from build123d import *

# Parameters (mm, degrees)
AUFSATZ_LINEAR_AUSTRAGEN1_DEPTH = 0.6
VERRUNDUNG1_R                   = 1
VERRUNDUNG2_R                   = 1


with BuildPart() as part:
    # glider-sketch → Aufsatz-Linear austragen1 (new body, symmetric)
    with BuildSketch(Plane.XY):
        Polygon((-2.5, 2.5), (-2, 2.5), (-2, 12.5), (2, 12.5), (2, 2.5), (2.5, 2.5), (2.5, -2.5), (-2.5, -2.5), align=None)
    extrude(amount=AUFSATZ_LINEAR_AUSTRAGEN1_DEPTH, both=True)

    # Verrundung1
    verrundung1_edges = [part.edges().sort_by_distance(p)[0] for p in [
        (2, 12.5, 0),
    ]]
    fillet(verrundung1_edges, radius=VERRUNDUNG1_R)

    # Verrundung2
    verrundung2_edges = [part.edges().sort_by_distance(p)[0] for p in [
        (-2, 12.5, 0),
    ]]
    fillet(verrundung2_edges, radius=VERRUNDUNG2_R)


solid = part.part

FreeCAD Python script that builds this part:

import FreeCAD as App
import Part
import Sketcher

V = App.Vector


def edges_at(feature, points):
    """Names of the edges that pass closest to the given points."""
    edges = feature.Shape.Edges
    near = lambda p: min(range(len(edges)), key=lambda i: edges[i].distToShape(Part.Vertex(*p))[0])
    return sorted({f"Edge{near(p) + 1}" for p in points})


def add_polygon(sketch, points):
    """Adds a closed chain of lines whose ends are joined by coincident constraints."""
    first, n = sketch.GeometryCount, len(points)
    for a, b in zip(points, points[1:] + points[:1]):
        sketch.addGeometry(Part.LineSegment(App.Vector(*a, 0), App.Vector(*b, 0)), False)
    for i in range(n):
        sketch.addConstraint(Sketcher.Constraint("Coincident", first + i, 2, first + (i + 1) % n, 1))

doc = App.newDocument("Part")
body = doc.addObject("PartDesign::Body", "Body")

# Sketch on XY plane
sketch1 = doc.addObject("Sketcher::SketchObject", "Sketch")
body.addObject(sketch1)
sketch1.AttachmentSupport = (doc.XY_Plane, [""])
sketch1.MapMode = "FlatFace"
add_polygon(sketch1, [(-2, 2.5), (-2.5, 2.5), (-2.5, -2.5), (2.5, -2.5), (2.5, 2.5), (2, 2.5), (2, 12.5), (-2, 12.5)])  # lines 0-7
sketch1.addConstraint(Sketcher.Constraint("Horizontal", 0))
sketch1.addConstraint(Sketcher.Constraint("Vertical", 1))
sketch1.addConstraint(Sketcher.Constraint("Horizontal", 2))
sketch1.addConstraint(Sketcher.Constraint("Vertical", 3))
sketch1.addConstraint(Sketcher.Constraint("Horizontal", 4))
sketch1.addConstraint(Sketcher.Constraint("Vertical", 5))
sketch1.addConstraint(Sketcher.Constraint("Horizontal", 6))
sketch1.addConstraint(Sketcher.Constraint("Vertical", 7))
sketch1.addConstraint(Sketcher.Constraint("Symmetric", 0, 2, 2, 2, -1, 1))
sketch1.addConstraint(Sketcher.Constraint("Symmetric", 4, 2, 7, 2, -2))
sketch1.addConstraint(Sketcher.Constraint("Equal", 2, 1))
sketch1.addConstraint(Sketcher.Constraint("DistanceX", 2, 1, 2, 2, 5.0))
sketch1.addConstraint(Sketcher.Constraint("DistanceX", 6, 2, 6, 1, 4.0))
sketch1.addConstraint(Sketcher.Constraint("DistanceY", 5, 1, 5, 2, 10.0))
pad1 = doc.addObject("PartDesign::Pad", "Pad")
body.addObject(pad1)
pad1.Profile = sketch1
pad1.Length = 1.2
pad1.Midplane = True
doc.recompute()

fillet = doc.addObject("PartDesign::Fillet", "Fillet")
body.addObject(fillet)
fillet.Base = (pad1, edges_at(pad1, [(2, 12.5, 0)]))
fillet.Radius = 1
doc.recompute()

fillet2 = doc.addObject("PartDesign::Fillet", "Fillet001")
body.addObject(fillet2)
fillet2.Base = (fillet, edges_at(fillet, [(-2, 12.5, 0)]))
fillet2.Radius = 1

doc.recompute()
